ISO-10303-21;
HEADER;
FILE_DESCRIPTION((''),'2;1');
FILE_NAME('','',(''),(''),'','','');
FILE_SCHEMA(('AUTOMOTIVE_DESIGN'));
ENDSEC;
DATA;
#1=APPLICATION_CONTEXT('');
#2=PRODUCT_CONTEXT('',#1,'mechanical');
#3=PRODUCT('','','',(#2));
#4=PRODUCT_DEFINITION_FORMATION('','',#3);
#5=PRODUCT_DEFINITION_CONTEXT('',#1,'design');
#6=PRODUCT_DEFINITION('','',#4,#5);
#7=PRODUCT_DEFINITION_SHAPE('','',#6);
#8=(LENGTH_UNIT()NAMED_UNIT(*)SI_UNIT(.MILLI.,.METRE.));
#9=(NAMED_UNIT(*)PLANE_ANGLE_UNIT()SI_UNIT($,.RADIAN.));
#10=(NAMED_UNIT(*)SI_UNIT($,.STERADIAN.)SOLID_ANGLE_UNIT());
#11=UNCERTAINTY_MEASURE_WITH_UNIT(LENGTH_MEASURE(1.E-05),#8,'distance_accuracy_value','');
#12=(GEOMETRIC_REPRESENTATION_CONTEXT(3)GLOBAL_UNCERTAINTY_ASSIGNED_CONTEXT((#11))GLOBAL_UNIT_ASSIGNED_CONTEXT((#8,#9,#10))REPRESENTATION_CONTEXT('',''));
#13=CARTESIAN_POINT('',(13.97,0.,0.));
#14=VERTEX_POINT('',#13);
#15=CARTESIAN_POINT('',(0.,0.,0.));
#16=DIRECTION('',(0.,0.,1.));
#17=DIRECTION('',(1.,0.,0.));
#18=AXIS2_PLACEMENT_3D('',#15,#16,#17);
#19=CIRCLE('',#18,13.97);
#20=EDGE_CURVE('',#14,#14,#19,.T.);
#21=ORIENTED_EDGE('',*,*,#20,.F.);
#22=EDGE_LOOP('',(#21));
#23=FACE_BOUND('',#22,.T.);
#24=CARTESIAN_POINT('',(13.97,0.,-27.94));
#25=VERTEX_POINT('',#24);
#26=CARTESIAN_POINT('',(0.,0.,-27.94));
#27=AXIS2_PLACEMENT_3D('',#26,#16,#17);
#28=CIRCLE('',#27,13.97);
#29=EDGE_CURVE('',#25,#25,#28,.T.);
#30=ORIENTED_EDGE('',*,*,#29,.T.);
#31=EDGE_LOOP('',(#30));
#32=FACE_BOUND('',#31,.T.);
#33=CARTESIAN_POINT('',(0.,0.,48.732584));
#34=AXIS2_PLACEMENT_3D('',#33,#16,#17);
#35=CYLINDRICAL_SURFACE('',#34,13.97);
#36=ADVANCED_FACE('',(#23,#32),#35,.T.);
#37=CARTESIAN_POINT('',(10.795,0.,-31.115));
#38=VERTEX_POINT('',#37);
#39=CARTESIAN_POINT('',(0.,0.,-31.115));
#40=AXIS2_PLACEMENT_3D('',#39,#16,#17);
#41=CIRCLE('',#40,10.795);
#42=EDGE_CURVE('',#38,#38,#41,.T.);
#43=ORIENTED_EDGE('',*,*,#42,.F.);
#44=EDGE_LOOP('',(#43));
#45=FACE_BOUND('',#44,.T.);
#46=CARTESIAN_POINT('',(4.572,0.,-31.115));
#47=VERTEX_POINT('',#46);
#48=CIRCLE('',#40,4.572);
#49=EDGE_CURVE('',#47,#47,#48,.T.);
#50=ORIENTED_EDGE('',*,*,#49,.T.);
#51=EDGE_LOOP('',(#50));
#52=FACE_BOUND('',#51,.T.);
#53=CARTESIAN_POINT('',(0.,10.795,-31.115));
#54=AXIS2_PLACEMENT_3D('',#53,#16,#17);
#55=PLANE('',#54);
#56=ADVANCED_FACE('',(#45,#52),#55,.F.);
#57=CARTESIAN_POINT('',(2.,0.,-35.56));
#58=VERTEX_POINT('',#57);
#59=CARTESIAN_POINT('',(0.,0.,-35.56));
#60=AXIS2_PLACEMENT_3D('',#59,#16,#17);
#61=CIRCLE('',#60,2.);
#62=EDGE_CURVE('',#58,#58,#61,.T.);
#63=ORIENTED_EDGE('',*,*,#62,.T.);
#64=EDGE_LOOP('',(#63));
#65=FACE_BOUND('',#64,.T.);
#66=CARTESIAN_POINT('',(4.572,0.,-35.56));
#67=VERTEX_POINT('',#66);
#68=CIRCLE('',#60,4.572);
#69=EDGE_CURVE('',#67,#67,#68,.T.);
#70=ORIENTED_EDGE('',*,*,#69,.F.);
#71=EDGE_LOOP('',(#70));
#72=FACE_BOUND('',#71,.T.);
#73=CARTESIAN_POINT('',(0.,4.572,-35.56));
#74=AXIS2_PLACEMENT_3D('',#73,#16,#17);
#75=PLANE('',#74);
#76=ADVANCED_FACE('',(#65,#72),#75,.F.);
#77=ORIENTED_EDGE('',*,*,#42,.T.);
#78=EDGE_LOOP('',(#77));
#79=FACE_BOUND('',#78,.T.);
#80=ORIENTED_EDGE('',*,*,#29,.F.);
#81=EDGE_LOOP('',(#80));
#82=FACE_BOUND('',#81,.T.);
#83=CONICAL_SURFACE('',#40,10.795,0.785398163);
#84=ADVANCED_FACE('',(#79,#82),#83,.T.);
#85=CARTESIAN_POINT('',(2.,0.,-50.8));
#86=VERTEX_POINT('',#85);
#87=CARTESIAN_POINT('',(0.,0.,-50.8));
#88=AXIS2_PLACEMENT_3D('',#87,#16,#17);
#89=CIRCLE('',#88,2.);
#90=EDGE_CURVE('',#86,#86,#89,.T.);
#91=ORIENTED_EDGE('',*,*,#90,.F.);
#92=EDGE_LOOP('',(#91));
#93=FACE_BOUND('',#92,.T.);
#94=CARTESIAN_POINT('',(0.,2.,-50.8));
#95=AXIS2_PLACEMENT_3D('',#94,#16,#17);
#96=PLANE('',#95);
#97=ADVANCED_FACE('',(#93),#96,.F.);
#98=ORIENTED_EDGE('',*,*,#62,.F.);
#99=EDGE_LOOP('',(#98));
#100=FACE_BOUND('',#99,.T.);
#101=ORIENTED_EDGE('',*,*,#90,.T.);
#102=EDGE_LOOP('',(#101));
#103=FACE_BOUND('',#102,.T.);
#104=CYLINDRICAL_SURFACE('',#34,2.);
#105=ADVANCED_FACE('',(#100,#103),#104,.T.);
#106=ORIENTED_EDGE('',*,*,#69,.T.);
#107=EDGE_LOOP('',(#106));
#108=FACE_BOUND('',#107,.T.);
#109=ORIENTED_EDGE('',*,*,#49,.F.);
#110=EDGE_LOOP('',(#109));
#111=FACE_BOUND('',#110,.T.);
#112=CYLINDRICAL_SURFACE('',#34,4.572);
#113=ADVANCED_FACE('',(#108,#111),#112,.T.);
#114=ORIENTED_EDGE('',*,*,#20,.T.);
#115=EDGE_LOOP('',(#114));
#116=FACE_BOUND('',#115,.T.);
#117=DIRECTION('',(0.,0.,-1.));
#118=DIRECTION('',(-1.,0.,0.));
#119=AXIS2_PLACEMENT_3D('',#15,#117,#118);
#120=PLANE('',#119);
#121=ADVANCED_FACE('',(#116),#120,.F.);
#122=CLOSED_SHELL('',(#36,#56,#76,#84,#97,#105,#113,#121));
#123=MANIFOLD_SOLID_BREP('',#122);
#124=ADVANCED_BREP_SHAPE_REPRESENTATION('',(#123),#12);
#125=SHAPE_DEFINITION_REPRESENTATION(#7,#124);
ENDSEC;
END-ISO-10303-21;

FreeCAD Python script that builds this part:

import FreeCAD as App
import Part
import Sketcher

V = App.Vector
Q = App.Units.Quantity


def add_polygon(sketch, points):
    """Adds a closed chain of lines whose ends are joined by coincident constraints."""
    first, n = sketch.GeometryCount, len(points)
    for a, b in zip(points, points[1:] + points[:1]):
        sketch.addGeometry(Part.LineSegment(App.Vector(*a, 0), App.Vector(*b, 0)), False)
    for i in range(n):
        sketch.addConstraint(Sketcher.Constraint("Coincident", first + i, 2, first + (i + 1) % n, 1))

doc = App.newDocument("Part")
params = doc.addObject("Spreadsheet::Sheet", "Params")
for row, (alias, value) in enumerate([
    ("sketch1_height", "2 in"),
    ("sketch1_height2", "0.6 in"),
    ("sketch1_height3", "1.1 in"),
    ("sketch1_width", "0.55 in"),
    ("sketch1_width2", "0.245 in"),
    ("revolution_angle", "360 deg"),
], start=1):
    params.set(f"A{row}", alias)
    params.set(f"B{row}", "=" + value)
    params.setAlias(f"B{row}", alias)

body = doc.addObject("PartDesign::Body", "Body")

sketch1 = body.newObject("Sketcher::SketchObject", "Sketch")
sketch1.AttachmentSupport = (doc.getObject("YZ_Plane"), [""])
sketch1.MapMode = "FlatFace"
add_polygon(sketch1, [(14, 0), (0, 0), (0, -50.8), (2, -50.8), (2, -35.6), (4.6, -35.6), (4.6, -31.1), (10.8, -31.1), (14, -27.9)])
sketch1.addConstraint([
    Sketcher.Constraint("Horizontal", 0),
    Sketcher.Constraint("Vertical", 1),
    Sketcher.Constraint("Horizontal", 2),
    Sketcher.Constraint("Vertical", 3),
    Sketcher.Constraint("Horizontal", 4),
    Sketcher.Constraint("Vertical", 5),
    Sketcher.Constraint("Horizontal", 6),
    Sketcher.Constraint("Vertical", 8),
    Sketcher.Constraint("Coincident", 0, 2, -1, 1),
    Sketcher.Constraint("DistanceY", 1, 2, 1, 1, Q("2 in")),
    Sketcher.Constraint("DistanceY", 3, 1, 3, 2, Q("0.6 in")),
    Sketcher.Constraint("DistanceY", 8, 1, 8, 2, Q("1.1 in")),
    Sketcher.Constraint("Angle", 7, Q("45 deg")),
    Sketcher.Constraint("DistanceX", 0, 2, 0, 1, Q("0.55 in")),
    Sketcher.Constraint("DistanceX", 6, 1, 6, 2, Q("0.245 in")),
    Sketcher.Constraint("DistanceY", 5, 1, 5, 2, Q("0.175 in")),
    Sketcher.Constraint("DistanceX", 2, 1, 2, 2, Q("2 mm")),
])
sketch1.setExpression("Constraints[18]", "Params.sketch1_height")
sketch1.setExpression("Constraints[19]", "Params.sketch1_height2")
sketch1.setExpression("Constraints[20]", "Params.sketch1_height3")
sketch1.setExpression("Constraints[22]", "Params.sketch1_width")
sketch1.setExpression("Constraints[23]", "Params.sketch1_width2")
revolution = body.newObject("PartDesign::Revolution", "Revolution")
revolution.Profile = sketch1
revolution.ReferenceAxis = (sketch1, ["V_Axis"])
revolution.setExpression("Angle", "Params.revolution_angle")

doc.recompute()
